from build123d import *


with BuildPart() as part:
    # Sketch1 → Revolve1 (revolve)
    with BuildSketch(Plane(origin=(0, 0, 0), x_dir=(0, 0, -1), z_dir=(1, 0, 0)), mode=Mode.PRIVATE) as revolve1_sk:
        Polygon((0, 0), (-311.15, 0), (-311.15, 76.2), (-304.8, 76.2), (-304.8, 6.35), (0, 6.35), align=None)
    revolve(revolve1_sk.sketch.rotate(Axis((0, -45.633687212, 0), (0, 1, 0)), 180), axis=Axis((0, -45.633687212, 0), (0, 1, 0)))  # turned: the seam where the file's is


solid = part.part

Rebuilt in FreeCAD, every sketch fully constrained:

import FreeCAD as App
import Part
import Sketcher
from FreeCAD import Vector
Q = App.Units.Quantity


def add_polygon(sketch, points):
    """Adds a closed chain of lines whose ends are joined by coincident constraints."""
    first, n = sketch.GeometryCount, len(points)
    for a, b in zip(points, points[1:] + points[:1]):
        sketch.addGeometry(Part.LineSegment(App.Vector(*a, 0), App.Vector(*b, 0)), False)
    for i in range(n):
        sketch.addConstraint(Sketcher.Constraint("Coincident", first + i, 2, first + (i + 1) % n, 1))

doc = App.newDocument("Part")
params = doc.addObject("Spreadsheet::Sheet", "Params")
for row, (alias, value) in enumerate([
    ("sketch1_width", "3 in"),
    ("sketch1_height", "12 in"),
    ("sketch1_width2", "0.25 in"),
    ("revolution_angle", "360 deg"),
], start=1):
    params.set(f"A{row}", alias)
    params.set(f"B{row}", "=" + value)
    params.setAlias(f"B{row}", alias)

body = doc.addObject("PartDesign::Body", "Body")

sketch1 = body.newObject("Sketcher::SketchObject", "Sketch")
sketch1.AttachmentSupport = (doc.getObject("YZ_Plane"), [""])
sketch1.MapMode = "FlatFace"
add_polygon(sketch1, [(0, 311.15), (0, 0), (6.35, 0), (6.35, 304.8), (76.2, 304.8), (76.2, 311.15)])
sketch1.addConstraint(Sketcher.Constraint("Vertical", 0))
sketch1.addConstraint(Sketcher.Constraint("Horizontal", 1))
sketch1.addConstraint(Sketcher.Constraint("Vertical", 2))
sketch1.addConstraint(Sketcher.Constraint("Horizontal", 3))
sketch1.addConstraint(Sketcher.Constraint("Vertical", 4))
sketch1.addConstraint(Sketcher.Constraint("Horizontal", 5))
sketch1.addConstraint(Sketcher.Constraint("Coincident", 0, 2, -1, 1))
sketch1.addConstraint(Sketcher.Constraint("Equal", 1, 4))
sketch1.addConstraint(Sketcher.Constraint("DistanceX", 5, 2, 5, 1, Q("3 in")))
sketch1.addConstraint(Sketcher.Constraint("DistanceY", 2, 1, 2, 2, Q("12 in")))
sketch1.addConstraint(Sketcher.Constraint("DistanceX", 1, 1, 1, 2, Q("0.25 in")))
sketch1.setExpression("Constraints[14]", "Params.sketch1_width")
sketch1.setExpression("Constraints[15]", "Params.sketch1_height")
sketch1.setExpression("Constraints[16]", "Params.sketch1_width2")
revolution = body.newObject("PartDesign::Revolution", "Revolution")
revolution.Profile = sketch1
revolution.ReferenceAxis = (sketch1, ["H_Axis"])
revolution.setExpression("Angle", "Params.revolution_angle")

doc.recompute()
